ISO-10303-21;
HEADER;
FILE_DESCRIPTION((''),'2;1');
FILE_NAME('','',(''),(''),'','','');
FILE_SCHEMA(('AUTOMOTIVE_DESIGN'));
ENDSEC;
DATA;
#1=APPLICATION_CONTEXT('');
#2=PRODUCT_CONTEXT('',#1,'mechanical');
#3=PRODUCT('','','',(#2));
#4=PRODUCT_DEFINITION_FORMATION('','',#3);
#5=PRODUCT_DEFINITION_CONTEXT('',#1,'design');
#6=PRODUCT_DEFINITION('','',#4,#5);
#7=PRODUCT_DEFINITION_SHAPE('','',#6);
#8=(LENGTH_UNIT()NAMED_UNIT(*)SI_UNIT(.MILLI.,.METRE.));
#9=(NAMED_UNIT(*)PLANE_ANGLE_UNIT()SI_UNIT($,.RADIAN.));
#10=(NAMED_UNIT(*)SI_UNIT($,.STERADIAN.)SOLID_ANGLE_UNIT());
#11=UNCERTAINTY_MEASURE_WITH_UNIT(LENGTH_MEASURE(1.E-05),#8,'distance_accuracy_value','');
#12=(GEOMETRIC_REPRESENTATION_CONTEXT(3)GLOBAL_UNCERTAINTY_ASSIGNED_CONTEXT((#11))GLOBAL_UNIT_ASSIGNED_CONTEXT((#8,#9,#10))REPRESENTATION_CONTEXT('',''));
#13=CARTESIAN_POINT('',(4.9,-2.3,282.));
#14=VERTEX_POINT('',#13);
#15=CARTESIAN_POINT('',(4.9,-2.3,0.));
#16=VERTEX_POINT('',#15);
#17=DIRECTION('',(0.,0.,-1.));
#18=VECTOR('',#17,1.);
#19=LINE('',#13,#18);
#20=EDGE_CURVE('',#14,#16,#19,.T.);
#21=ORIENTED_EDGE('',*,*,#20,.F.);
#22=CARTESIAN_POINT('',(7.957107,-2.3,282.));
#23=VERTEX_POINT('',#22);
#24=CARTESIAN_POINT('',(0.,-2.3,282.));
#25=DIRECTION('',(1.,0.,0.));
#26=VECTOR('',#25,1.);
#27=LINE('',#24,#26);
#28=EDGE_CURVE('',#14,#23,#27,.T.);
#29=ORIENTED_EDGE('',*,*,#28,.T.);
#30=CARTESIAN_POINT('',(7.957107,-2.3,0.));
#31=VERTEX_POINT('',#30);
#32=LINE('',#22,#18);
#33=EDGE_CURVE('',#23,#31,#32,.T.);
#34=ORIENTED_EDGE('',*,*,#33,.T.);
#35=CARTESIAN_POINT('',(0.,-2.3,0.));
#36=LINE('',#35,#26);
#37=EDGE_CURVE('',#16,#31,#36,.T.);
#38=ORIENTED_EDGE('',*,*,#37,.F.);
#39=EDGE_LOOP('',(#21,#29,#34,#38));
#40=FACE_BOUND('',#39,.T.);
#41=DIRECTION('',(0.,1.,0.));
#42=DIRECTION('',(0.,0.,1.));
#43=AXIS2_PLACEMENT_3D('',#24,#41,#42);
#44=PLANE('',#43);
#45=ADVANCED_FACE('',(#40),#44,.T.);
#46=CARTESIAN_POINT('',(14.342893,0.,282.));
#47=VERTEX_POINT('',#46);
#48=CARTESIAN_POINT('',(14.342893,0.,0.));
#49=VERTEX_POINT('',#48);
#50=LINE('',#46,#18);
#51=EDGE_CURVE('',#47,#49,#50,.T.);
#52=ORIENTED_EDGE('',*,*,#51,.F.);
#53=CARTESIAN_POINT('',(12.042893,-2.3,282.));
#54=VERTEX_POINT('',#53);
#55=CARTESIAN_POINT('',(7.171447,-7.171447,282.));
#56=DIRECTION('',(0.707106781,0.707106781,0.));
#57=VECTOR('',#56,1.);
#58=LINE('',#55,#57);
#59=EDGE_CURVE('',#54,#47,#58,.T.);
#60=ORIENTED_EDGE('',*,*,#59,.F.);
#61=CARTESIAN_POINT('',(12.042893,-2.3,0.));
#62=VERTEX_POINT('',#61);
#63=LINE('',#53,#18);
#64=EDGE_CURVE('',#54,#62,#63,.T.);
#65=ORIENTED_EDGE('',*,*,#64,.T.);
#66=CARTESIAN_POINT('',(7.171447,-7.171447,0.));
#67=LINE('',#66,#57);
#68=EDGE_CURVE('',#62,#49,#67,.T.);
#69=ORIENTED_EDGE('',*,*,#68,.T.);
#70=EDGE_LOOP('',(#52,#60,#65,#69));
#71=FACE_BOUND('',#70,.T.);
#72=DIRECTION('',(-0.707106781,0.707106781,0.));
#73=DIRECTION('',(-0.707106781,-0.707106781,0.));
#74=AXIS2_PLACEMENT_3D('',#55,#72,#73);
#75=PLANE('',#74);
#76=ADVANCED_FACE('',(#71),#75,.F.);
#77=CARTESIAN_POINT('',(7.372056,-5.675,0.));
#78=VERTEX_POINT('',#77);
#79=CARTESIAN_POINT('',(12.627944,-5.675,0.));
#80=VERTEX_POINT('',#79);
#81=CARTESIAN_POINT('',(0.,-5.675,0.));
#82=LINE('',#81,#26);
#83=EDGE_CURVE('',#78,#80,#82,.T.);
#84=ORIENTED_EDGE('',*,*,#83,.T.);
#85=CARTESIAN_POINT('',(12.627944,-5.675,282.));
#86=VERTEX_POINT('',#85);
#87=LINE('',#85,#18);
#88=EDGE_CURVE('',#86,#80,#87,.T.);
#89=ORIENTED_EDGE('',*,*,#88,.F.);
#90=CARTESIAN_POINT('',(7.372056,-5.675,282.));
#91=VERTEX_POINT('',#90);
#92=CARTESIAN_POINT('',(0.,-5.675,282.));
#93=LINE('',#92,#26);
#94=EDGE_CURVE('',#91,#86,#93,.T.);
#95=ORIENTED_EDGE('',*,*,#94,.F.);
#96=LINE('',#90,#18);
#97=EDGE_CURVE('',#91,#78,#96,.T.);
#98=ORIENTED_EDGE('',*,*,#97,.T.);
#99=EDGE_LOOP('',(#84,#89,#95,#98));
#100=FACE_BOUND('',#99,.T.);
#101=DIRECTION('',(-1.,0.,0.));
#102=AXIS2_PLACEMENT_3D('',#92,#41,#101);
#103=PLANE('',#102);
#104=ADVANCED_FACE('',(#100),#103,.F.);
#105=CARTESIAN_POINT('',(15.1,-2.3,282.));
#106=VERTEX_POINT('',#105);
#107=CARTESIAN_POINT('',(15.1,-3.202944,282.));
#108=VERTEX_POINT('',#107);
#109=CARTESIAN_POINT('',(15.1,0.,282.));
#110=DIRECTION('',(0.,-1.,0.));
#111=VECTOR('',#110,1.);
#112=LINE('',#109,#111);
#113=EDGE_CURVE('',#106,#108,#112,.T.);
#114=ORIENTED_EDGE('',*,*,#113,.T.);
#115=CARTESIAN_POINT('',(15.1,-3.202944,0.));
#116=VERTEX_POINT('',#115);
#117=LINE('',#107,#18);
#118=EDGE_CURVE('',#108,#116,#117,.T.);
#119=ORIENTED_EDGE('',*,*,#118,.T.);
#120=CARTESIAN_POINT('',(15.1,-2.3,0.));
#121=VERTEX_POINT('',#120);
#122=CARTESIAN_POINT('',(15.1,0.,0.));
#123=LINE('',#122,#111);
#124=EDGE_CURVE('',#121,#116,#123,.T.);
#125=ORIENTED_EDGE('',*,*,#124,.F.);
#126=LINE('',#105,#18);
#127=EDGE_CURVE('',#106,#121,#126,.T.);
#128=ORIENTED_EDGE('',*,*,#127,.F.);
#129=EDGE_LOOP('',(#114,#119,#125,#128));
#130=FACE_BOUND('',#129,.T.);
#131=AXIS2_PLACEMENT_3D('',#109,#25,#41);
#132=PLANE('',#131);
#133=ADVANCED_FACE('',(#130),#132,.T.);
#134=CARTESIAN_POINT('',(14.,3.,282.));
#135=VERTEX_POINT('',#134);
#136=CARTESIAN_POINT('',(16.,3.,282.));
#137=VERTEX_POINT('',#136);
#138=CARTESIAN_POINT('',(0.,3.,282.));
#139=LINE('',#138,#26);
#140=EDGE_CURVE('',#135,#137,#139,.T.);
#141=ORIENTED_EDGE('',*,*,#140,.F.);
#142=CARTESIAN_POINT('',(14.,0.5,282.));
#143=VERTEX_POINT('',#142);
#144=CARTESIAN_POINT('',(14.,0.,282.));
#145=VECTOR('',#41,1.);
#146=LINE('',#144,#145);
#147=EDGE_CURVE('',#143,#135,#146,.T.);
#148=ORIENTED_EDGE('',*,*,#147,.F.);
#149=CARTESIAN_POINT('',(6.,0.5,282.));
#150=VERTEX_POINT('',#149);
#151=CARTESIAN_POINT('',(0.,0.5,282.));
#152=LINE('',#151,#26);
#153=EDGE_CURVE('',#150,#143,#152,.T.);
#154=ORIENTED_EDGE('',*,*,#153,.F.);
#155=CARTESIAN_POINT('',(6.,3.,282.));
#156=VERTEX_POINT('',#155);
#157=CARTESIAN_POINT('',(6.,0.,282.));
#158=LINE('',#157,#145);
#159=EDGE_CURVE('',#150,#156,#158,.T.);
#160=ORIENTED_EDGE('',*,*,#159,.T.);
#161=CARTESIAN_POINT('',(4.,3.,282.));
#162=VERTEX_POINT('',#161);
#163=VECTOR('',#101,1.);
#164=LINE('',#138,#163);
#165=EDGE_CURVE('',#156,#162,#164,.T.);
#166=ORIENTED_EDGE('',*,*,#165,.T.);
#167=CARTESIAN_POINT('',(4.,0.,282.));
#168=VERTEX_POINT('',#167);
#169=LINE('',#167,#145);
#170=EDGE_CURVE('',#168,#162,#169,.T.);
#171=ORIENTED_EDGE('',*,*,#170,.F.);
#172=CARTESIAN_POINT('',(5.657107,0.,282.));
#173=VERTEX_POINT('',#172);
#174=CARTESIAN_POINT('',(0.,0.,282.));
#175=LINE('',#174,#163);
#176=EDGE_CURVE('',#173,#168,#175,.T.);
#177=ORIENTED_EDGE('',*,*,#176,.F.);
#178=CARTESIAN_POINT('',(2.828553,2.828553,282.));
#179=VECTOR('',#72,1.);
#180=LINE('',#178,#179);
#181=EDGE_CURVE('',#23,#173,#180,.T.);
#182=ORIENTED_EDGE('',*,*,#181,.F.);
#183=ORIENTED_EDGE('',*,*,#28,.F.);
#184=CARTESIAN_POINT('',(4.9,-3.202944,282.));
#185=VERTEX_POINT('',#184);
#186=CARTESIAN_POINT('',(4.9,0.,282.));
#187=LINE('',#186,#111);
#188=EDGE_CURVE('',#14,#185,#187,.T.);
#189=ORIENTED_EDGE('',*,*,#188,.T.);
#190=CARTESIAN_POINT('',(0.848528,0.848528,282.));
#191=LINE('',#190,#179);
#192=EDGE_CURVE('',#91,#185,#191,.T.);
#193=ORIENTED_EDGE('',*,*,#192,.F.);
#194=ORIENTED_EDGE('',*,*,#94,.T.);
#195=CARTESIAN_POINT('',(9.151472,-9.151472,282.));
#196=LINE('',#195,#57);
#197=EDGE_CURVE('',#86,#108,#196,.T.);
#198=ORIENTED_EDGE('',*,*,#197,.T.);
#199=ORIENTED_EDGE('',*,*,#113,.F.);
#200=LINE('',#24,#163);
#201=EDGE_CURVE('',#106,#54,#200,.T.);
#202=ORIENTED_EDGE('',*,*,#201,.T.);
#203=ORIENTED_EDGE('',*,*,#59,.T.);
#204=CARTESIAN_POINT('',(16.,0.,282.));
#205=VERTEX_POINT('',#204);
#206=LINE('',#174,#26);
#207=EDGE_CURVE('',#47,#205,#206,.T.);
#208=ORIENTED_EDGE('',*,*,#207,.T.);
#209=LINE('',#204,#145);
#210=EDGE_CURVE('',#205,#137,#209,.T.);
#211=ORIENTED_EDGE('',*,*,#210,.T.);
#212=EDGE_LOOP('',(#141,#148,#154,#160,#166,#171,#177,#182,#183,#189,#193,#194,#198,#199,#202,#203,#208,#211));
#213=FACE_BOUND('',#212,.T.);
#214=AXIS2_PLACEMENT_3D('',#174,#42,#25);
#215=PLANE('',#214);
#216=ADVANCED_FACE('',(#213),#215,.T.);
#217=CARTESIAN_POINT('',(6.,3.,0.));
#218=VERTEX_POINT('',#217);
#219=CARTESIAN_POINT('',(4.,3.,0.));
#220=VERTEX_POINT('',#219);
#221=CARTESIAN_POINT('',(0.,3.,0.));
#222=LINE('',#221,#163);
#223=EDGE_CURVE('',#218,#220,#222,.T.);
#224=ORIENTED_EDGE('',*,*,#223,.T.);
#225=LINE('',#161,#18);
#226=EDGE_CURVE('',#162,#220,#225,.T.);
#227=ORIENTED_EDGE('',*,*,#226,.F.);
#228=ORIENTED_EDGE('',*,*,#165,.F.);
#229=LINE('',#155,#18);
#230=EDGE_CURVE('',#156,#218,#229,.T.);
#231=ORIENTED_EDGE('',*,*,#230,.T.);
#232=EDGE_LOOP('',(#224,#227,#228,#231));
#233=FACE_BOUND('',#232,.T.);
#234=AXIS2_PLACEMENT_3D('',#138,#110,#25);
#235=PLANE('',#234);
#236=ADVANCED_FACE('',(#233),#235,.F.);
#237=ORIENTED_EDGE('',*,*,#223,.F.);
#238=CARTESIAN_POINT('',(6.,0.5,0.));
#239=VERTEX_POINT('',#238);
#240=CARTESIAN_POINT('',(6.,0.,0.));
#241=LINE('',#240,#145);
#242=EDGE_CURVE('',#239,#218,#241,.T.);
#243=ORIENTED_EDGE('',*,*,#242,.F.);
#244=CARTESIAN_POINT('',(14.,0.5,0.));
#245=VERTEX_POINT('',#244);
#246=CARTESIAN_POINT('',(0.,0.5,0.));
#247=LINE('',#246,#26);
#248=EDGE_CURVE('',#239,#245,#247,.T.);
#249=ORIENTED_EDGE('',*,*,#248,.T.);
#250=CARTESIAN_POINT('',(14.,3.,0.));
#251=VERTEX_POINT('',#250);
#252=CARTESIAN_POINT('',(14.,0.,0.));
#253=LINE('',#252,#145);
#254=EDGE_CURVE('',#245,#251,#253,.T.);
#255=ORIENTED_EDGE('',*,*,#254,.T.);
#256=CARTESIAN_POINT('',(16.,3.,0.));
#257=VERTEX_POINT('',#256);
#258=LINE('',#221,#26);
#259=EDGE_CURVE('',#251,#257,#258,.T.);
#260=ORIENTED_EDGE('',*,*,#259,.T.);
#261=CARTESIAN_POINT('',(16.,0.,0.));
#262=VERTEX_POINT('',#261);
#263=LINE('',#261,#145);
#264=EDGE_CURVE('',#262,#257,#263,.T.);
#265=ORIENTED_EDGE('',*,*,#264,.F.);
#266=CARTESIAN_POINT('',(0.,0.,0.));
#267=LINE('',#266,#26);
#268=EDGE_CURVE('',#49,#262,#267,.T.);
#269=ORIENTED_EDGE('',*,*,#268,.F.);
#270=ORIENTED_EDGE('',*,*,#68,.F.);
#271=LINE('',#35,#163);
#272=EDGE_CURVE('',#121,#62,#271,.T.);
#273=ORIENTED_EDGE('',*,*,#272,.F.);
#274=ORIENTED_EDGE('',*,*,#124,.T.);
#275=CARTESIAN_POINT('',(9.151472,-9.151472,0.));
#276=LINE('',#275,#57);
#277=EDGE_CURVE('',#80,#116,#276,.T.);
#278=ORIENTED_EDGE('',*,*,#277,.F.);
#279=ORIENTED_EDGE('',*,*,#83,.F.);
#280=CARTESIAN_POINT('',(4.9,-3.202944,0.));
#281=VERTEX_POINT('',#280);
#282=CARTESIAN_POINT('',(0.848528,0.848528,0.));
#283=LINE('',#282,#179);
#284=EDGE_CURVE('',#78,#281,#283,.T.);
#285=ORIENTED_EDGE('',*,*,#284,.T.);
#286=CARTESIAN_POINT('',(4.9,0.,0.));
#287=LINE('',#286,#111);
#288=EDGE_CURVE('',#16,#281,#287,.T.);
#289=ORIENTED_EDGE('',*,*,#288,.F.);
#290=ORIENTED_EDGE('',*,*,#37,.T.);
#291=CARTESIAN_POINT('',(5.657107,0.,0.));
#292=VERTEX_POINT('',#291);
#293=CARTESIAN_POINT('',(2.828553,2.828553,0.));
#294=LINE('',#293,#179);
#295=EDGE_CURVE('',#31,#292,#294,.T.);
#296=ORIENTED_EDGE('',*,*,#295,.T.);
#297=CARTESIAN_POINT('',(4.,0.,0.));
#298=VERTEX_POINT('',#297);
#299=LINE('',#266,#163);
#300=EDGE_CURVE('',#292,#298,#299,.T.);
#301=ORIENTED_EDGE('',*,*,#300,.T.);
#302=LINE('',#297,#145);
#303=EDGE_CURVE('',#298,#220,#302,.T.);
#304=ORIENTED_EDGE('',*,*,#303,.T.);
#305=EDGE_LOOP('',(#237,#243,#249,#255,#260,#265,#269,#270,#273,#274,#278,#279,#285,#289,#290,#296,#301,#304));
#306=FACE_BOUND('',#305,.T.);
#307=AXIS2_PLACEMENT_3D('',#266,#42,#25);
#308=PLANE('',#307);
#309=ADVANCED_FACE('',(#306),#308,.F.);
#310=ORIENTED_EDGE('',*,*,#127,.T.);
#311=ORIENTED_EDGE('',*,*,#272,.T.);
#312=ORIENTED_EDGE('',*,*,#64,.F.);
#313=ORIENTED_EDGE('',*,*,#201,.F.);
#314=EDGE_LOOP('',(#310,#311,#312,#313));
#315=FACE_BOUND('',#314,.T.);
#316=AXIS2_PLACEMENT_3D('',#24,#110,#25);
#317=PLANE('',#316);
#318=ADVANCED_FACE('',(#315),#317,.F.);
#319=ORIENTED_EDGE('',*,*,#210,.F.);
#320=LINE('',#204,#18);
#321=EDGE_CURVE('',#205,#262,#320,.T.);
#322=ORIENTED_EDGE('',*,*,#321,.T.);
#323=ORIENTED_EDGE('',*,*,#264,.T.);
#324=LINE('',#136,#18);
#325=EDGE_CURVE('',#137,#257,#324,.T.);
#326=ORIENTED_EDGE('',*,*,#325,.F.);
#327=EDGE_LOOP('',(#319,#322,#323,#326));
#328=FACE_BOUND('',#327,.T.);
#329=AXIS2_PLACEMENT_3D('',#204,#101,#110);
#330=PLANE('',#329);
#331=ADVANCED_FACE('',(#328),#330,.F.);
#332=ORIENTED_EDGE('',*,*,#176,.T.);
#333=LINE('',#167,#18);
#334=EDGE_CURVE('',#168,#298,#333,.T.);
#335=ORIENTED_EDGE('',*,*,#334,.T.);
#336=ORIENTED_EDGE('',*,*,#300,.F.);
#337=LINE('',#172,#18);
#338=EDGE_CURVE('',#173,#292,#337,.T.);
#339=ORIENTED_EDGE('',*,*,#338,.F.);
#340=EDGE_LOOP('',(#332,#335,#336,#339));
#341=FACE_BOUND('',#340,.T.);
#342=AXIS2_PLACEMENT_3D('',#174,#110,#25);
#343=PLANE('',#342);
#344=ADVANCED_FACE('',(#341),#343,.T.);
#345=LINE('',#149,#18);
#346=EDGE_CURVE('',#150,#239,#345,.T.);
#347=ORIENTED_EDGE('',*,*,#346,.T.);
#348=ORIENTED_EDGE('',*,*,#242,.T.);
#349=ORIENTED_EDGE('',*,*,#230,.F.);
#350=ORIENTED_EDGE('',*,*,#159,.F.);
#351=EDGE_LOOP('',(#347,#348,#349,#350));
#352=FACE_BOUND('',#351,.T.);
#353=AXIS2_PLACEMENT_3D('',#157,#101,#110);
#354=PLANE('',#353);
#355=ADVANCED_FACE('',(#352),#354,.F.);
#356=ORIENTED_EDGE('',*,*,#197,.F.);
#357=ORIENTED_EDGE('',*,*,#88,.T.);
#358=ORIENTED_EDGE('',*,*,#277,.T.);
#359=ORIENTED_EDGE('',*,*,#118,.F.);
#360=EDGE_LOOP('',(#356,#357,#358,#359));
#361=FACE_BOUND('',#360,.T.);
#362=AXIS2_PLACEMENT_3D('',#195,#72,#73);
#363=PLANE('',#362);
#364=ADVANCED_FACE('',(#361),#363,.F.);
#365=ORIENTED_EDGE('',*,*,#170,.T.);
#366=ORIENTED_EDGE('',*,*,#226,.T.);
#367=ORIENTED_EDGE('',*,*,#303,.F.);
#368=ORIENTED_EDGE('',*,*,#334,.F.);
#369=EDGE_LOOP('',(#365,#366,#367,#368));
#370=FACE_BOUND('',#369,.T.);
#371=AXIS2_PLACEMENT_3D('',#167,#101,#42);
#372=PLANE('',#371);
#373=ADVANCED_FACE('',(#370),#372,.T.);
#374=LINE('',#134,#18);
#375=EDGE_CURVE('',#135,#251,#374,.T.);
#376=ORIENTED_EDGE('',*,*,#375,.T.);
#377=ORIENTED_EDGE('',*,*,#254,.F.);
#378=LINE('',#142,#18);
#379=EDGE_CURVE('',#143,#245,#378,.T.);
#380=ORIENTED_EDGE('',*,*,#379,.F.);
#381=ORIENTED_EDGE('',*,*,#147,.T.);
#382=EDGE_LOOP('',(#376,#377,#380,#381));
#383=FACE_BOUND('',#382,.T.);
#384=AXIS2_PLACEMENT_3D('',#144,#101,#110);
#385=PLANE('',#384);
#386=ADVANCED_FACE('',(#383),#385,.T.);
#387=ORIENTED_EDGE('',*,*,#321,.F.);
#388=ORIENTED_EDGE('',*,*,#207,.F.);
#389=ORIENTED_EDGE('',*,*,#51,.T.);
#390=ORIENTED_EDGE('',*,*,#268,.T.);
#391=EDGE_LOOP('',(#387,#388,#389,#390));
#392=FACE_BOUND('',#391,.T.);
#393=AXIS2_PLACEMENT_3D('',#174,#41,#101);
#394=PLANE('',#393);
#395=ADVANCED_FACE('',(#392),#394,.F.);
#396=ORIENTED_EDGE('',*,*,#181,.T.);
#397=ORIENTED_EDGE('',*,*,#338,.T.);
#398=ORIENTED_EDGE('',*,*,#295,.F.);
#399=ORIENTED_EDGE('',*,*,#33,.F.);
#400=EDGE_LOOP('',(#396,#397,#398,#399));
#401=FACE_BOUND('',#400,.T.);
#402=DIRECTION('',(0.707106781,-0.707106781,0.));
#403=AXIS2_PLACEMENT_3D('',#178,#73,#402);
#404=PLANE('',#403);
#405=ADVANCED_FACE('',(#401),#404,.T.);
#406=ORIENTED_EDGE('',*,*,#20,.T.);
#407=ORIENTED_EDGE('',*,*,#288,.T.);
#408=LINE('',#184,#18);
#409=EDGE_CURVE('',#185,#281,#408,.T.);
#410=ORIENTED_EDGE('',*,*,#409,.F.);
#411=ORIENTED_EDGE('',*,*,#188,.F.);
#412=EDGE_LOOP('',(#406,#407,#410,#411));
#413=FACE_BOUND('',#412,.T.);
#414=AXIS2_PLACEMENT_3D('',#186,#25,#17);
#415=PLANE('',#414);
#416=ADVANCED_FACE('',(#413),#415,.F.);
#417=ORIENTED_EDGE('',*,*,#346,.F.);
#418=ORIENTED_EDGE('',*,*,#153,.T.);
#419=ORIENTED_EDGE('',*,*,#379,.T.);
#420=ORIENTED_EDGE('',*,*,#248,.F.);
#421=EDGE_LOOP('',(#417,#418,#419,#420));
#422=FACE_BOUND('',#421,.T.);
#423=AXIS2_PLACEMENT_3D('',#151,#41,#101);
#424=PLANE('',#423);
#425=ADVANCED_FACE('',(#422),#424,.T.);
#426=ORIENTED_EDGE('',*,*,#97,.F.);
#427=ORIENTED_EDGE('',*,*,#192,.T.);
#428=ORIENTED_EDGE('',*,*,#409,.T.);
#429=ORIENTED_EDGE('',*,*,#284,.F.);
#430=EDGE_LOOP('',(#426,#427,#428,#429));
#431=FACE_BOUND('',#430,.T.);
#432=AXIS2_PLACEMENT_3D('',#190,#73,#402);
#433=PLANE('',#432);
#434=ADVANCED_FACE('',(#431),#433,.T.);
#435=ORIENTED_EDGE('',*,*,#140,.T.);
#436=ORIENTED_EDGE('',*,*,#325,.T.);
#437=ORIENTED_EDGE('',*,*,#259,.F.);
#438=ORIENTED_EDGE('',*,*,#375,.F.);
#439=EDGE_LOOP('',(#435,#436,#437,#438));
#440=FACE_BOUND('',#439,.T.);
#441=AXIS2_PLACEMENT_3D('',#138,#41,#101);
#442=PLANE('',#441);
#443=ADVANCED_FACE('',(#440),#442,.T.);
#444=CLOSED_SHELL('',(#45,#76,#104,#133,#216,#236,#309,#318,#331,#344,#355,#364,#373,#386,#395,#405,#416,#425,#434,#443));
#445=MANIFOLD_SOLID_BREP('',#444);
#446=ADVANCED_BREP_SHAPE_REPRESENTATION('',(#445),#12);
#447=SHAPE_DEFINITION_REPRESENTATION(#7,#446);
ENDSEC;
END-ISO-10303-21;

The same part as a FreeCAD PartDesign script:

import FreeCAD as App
import Part
import Sketcher

V = App.Vector

doc = App.newDocument("Part")
body = doc.addObject("PartDesign::Body", "Body")

sketch1 = doc.addObject("Sketcher::SketchObject", "Sketch")
body.addObject(sketch1)
sketch1.AttachmentSupport = (doc.XY_Plane, [""])
sketch1.MapMode = "FlatFace"
sketch1.addGeometry([
    Part.LineSegment(V(7.372056, -5.675, 0), V(12.627944, -5.675, 0)),
    Part.LineSegment(V(12.627944, -5.675, 0), V(15.1, -3.202944, 0)),
    Part.LineSegment(V(15.1, -3.202944, 0), V(15.1, -2.3, 0)),
    Part.LineSegment(V(15.1, -2.3, 0), V(12.042893, -2.3, 0)),
    Part.LineSegment(V(12.042893, -2.3, 0), V(14.342893, 0, 0)),
    Part.LineSegment(V(14.342893, 0, 0), V(16, 0, 0)),
    Part.LineSegment(V(16, 0, 0), V(16, 3, 0)),
    Part.LineSegment(V(16, 3, 0), V(14, 3, 0)),
    Part.LineSegment(V(14, 3, 0), V(14, 0.5, 0)),
    Part.LineSegment(V(14, 0.5, 0), V(6, 0.5, 0)),
    Part.LineSegment(V(6, 0.5, 0), V(6, 3, 0)),
    Part.LineSegment(V(6, 3, 0), V(4, 3, 0)),
    Part.LineSegment(V(4, 3, 0), V(4, 0, 0)),
    Part.LineSegment(V(4, 0, 0), V(5.657107, 0, 0)),
    Part.LineSegment(V(5.657107, 0, 0), V(7.957107, -2.3, 0)),
    Part.LineSegment(V(7.957107, -2.3, 0), V(4.9, -2.3, 0)),
    Part.LineSegment(V(4.9, -2.3, 0), V(4.9, -3.202944, 0)),
    Part.LineSegment(V(4.9, -3.202944, 0), V(7.372056, -5.675, 0)),
], False)
sketch1.addConstraint([
    Sketcher.Constraint("Coincident", 0, 2, 1, 1),
    Sketcher.Constraint("Coincident", 1, 2, 2, 1),
    Sketcher.Constraint("Coincident", 2, 2, 3, 1),
    Sketcher.Constraint("Coincident", 3, 2, 4, 1),
    Sketcher.Constraint("Coincident", 4, 2, 5, 1),
    Sketcher.Constraint("Coincident", 5, 2, 6, 1),
    Sketcher.Constraint("Coincident", 6, 2, 7, 1),
    Sketcher.Constraint("Coincident", 7, 2, 8, 1),
    Sketcher.Constraint("Coincident", 8, 2, 9, 1),
    Sketcher.Constraint("Coincident", 9, 2, 10, 1),
    Sketcher.Constraint("Coincident", 10, 2, 11, 1),
    Sketcher.Constraint("Coincident", 11, 2, 12, 1),
    Sketcher.Constraint("Coincident", 12, 2, 13, 1),
    Sketcher.Constraint("Coincident", 13, 2, 14, 1),
    Sketcher.Constraint("Coincident", 14, 2, 15, 1),
    Sketcher.Constraint("Coincident", 15, 2, 16, 1),
    Sketcher.Constraint("Coincident", 16, 2, 17, 1),
    Sketcher.Constraint("Coincident", 17, 2, 0, 1),
    Sketcher.Constraint("Horizontal", 0),
    Sketcher.Constraint("Vertical", 2),
    Sketcher.Constraint("Horizontal", 3),
    Sketcher.Constraint("Horizontal", 5),
    Sketcher.Constraint("Vertical", 6),
    Sketcher.Constraint("Horizontal", 7),
    Sketcher.Constraint("Vertical", 8),
    Sketcher.Constraint("Horizontal", 9),
    Sketcher.Constraint("Vertical", 10),
    Sketcher.Constraint("Horizontal", 11),
    Sketcher.Constraint("Vertical", 12),
    Sketcher.Constraint("Horizontal", 13),
    Sketcher.Constraint("Horizontal", 15),
    Sketcher.Constraint("Vertical", 16),
    Sketcher.Constraint("PointOnObject", 4, 2, -1),
    Sketcher.Constraint("PointOnObject", 12, 2, -1),
    Sketcher.Constraint("Parallel", 1, 4),
    Sketcher.Constraint("Perpendicular", 4, 14),
    Sketcher.Constraint("Parallel", 14, 17),
    Sketcher.Constraint("Horizontal", 7, 2, 10, 2),
    Sketcher.Constraint("Horizontal", 3, 2, 14, 2),
    Sketcher.Constraint("Horizontal", 1, 2, 16, 2),
    Sketcher.Constraint("Equal", 7, 11),
    Sketcher.Constraint("Equal", 5, 13),
    Sketcher.Constraint("Equal", 3, 15),
    Sketcher.Constraint("Equal", 4, 14),
    Sketcher.Constraint("DistanceX", 7, 2, 7, 1, 2.0),
    Sketcher.Constraint("DistanceX", 9, 2, 9, 1, 8.0),
    Sketcher.Constraint("DistanceY", 6, 1, 6, 2, 3.0),
    Sketcher.Constraint("DistanceY", 8, 2, 8, 1, 2.5),
    Sketcher.Constraint("DistanceX", -1, 1, 5, 2, 16.0),
    Sketcher.Constraint("DistanceX", -1, 1, 1, 2, 15.1),
    Sketcher.Constraint("DistanceY", 2, 2, -1, 1, 2.3),
    Sketcher.Constraint("DistanceY", 0, 2, -1, 1, 5.675),
    Sketcher.Constraint("DistanceX", 0, 1, 0, 2, 5.255887),
    Sketcher.Constraint("DistanceX", 3, 2, 3, 1, 3.057107),
])
pad1 = doc.addObject("PartDesign::Pad", "Pad")
body.addObject(pad1)
pad1.Profile = sketch1
pad1.Length = 282

doc.recompute()
